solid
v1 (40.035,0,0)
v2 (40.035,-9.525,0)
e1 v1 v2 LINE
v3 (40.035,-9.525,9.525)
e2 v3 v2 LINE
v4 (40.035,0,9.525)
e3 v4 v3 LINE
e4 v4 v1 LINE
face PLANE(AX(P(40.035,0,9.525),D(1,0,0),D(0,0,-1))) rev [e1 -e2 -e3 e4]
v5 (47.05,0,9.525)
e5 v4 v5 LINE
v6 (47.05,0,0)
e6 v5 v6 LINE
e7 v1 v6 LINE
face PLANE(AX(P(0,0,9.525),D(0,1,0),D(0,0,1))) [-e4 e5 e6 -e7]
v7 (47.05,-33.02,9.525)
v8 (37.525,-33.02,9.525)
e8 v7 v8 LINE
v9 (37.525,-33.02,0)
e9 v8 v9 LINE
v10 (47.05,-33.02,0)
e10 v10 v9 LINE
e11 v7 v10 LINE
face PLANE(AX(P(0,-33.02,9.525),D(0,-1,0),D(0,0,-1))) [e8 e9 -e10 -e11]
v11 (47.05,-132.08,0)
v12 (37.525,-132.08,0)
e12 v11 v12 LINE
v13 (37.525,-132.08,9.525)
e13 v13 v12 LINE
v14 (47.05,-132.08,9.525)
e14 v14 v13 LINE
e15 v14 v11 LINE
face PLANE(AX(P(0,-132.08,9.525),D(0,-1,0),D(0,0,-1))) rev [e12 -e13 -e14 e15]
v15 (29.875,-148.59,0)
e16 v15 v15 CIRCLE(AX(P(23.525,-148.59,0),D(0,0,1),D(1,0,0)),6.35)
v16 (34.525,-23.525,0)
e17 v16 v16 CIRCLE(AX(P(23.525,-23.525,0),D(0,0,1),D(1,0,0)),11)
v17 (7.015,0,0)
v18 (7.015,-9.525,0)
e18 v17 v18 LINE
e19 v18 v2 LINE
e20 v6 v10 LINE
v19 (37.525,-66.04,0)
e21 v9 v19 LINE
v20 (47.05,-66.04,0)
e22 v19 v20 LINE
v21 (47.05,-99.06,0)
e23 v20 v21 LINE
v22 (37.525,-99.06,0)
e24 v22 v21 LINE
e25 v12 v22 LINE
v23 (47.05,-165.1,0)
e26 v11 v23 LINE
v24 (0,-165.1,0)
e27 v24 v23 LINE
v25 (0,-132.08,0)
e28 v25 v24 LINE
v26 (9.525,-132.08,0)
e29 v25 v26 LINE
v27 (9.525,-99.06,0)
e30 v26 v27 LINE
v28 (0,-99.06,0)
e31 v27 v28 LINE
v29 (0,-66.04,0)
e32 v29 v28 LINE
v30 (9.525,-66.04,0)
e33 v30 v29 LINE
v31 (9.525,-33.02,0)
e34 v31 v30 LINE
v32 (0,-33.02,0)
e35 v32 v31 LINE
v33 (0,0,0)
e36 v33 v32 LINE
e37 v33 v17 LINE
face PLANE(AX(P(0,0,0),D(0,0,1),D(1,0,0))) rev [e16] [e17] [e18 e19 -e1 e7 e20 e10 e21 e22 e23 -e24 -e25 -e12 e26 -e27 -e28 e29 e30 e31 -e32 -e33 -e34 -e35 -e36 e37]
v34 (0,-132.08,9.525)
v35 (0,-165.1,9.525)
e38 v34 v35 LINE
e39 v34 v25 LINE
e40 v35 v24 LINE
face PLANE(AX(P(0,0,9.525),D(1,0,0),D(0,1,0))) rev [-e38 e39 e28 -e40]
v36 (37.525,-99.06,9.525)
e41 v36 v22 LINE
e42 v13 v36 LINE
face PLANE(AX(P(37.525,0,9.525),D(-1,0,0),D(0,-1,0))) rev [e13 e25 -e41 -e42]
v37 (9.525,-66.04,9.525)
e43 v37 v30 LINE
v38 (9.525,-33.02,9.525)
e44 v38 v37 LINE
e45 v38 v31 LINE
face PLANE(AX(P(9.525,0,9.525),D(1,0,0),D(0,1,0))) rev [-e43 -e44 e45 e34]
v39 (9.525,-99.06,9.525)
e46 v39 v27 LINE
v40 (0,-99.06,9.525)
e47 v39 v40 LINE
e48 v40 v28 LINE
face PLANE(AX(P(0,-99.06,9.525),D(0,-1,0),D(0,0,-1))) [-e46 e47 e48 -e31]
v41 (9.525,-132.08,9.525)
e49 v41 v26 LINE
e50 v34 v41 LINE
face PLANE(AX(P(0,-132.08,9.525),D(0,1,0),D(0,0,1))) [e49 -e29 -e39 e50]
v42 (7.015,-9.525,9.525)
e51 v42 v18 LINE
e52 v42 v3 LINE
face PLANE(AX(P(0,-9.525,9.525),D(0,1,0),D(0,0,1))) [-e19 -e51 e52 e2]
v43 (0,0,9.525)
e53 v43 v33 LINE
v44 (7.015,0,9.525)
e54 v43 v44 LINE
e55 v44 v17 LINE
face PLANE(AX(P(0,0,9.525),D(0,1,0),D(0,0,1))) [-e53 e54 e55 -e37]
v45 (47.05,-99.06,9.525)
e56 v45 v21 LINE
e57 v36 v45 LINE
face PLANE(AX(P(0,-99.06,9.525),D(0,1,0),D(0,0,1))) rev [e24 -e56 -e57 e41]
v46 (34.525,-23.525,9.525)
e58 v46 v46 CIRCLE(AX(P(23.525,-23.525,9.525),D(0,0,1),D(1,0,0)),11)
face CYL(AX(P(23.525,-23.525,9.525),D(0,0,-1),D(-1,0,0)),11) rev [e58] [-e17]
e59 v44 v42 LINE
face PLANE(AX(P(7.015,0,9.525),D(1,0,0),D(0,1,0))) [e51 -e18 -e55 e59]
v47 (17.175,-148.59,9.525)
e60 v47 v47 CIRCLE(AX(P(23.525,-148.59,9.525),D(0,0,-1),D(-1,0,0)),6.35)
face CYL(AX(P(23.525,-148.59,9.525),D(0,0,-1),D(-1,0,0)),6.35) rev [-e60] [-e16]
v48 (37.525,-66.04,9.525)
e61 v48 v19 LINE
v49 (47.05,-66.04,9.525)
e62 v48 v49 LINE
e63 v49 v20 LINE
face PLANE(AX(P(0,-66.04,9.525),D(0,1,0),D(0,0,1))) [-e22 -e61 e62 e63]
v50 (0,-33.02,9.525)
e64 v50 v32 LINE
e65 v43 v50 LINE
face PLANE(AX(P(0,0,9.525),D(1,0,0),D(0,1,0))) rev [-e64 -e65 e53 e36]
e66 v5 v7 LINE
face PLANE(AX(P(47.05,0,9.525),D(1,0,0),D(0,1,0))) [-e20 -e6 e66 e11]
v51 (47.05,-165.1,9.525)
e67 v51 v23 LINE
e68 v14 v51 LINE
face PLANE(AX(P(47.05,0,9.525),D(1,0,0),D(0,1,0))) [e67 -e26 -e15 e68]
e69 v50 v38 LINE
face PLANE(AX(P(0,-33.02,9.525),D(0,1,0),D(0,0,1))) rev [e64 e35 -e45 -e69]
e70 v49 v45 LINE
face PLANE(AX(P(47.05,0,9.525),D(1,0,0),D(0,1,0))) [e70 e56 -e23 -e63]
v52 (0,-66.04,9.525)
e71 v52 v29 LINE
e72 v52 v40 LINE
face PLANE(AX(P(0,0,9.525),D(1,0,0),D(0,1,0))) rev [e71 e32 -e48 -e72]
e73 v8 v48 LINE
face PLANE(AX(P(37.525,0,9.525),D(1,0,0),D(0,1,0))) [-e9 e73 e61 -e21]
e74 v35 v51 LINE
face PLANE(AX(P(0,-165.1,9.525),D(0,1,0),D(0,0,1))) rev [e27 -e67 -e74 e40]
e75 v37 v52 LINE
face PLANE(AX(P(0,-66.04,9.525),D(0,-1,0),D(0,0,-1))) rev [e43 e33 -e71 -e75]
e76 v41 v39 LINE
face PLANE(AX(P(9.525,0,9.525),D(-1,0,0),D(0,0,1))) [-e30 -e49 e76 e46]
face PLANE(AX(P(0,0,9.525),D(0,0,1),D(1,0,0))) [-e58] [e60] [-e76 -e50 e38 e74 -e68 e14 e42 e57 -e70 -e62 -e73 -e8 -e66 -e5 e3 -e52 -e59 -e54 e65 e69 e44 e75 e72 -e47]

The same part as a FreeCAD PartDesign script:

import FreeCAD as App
import Part
import Sketcher
Q = App.Units.Quantity


def add_polygon(sketch, points):
    """Adds a closed chain of lines whose ends are joined by coincident constraints."""
    first, n = sketch.GeometryCount, len(points)
    for a, b in zip(points, points[1:] + points[:1]):
        sketch.addGeometry(Part.LineSegment(App.Vector(*a, 0), App.Vector(*b, 0)), False)
    for i in range(n):
        sketch.addConstraint(Sketcher.Constraint("Coincident", first + i, 2, first + (i + 1) % n, 1))

doc = App.newDocument("Part")
body = doc.addObject("PartDesign::Body", "Body")

sketch1 = body.newObject("Sketcher::SketchObject", "Sketch")
sketch1.AttachmentSupport = (doc.getObject("XY_Plane"), [""])
sketch1.MapMode = "FlatFace"
add_polygon(sketch1, [(0, 0), (0, -33), (10, -33), (10, -66), (0, -66), (0, -99), (10, -99), (10, -132), (0, -132), (0, -165), (47, -165), (47, -132), (38, -132), (38, -99), (47, -99), (47, -66), (38, -66), (38, -33), (47, -33), (47, 0), (40, 0), (40, -10), (7, -10), (7, 0)])
sketch1.addGeometry(Part.Circle(App.Vector(24, -24, 0), App.Vector(0, 0, 1), 11), False)
sketch1.addConstraint([
    Sketcher.Constraint("Vertical", 0),
    Sketcher.Constraint("Horizontal", 1),
    Sketcher.Constraint("Vertical", 2),
    Sketcher.Constraint("Horizontal", 3),
    Sketcher.Constraint("Vertical", 4),
    Sketcher.Constraint("Horizontal", 5),
    Sketcher.Constraint("Vertical", 6),
    Sketcher.Constraint("Horizontal", 7),
    Sketcher.Constraint("Vertical", 8),
    Sketcher.Constraint("Horizontal", 9),
    Sketcher.Constraint("Vertical", 10),
    Sketcher.Constraint("Horizontal", 11),
    Sketcher.Constraint("Vertical", 12),
    Sketcher.Constraint("Horizontal", 13),
    Sketcher.Constraint("Vertical", 14),
    Sketcher.Constraint("Horizontal", 15),
    Sketcher.Constraint("Vertical", 16),
    Sketcher.Constraint("Horizontal", 17),
    Sketcher.Constraint("Vertical", 18),
    Sketcher.Constraint("Horizontal", 19),
    Sketcher.Constraint("Vertical", 20),
    Sketcher.Constraint("Horizontal", 21),
    Sketcher.Constraint("Vertical", 22),
    Sketcher.Constraint("Horizontal", 23),
    Sketcher.Constraint("Coincident", 23, 2, -1, 1),
    Sketcher.Constraint("PointOnObject", 3, 2, -2),
    Sketcher.Constraint("PointOnObject", 7, 2, -2),
    Sketcher.Constraint("PointOnObject", 18, 2, -1),
    Sketcher.Constraint("Horizontal", 7, 2, 10, 2),
    Sketcher.Constraint("Horizontal", 5, 2, 12, 2),
    Sketcher.Constraint("Horizontal", 3, 2, 14, 2),
    Sketcher.Constraint("Horizontal", 1, 2, 16, 2),
    Sketcher.Constraint("Vertical", 2, 2, 5, 2),
    Sketcher.Constraint("Vertical", 10, 2, 13, 2),
    Sketcher.Constraint("Vertical", 12, 2, 15, 2),
    Sketcher.Constraint("Vertical", 14, 2, 17, 2),
    Sketcher.Constraint("Equal", 7, 11),
    Sketcher.Constraint("Equal", 19, 23),
    Sketcher.Constraint("Equal", 21, 0),
    Sketcher.Constraint("Equal", 0, 2),
    Sketcher.Constraint("Equal", 2, 4),
    Sketcher.Constraint("Equal", 4, 6),
    Sketcher.Constraint("Equal", 6, 8),
    Sketcher.Constraint("Equal", 17, 20),
    Sketcher.Constraint("DistanceX", 21, 2, 21, 1, Q("1.3 in")),
    Sketcher.Constraint("Diameter", 24, 22.0),
    Sketcher.Constraint("DistanceX", 1, 1, 1, 2, Q("0.375 in")),
    Sketcher.Constraint("DistanceX", 24, 3, 19, 2, Q("0.65 in")),
    Sketcher.Constraint("DistanceX", 9, 1, 9, 2, 47.05),
    Sketcher.Constraint("DistanceY", 24, 3, -1, 1, 23.525),
])
pad1 = body.newObject("PartDesign::Pad", "Pad")
pad1.Profile = sketch1
pad1.Length = Q("0.375 in")

sketch2 = body.newObject("Sketcher::SketchObject", "Sketch001")
sketch2.AttachmentSupport = (doc.getObject("XY_Plane"), [""])
sketch2.MapMode = "FlatFace"
sketch2.addGeometry(Part.Circle(App.Vector(24, -149, 0), App.Vector(0, 0, 1), 6), False)
sketch2.addConstraint([
    Sketcher.Constraint("Diameter", 0, Q("0.5 in")),
    Sketcher.Constraint("DistanceY", 0, 3, -1, 1, Q("5.85 in")),
    Sketcher.Constraint("DistanceX", -1, 1, 0, 3, 23.525),
])
pocket1 = body.newObject("PartDesign::Pocket", "Pocket")
pocket1.Profile = sketch2
pocket1.Type = "ThroughAll"
pocket1.Midplane = True

doc.recompute()
